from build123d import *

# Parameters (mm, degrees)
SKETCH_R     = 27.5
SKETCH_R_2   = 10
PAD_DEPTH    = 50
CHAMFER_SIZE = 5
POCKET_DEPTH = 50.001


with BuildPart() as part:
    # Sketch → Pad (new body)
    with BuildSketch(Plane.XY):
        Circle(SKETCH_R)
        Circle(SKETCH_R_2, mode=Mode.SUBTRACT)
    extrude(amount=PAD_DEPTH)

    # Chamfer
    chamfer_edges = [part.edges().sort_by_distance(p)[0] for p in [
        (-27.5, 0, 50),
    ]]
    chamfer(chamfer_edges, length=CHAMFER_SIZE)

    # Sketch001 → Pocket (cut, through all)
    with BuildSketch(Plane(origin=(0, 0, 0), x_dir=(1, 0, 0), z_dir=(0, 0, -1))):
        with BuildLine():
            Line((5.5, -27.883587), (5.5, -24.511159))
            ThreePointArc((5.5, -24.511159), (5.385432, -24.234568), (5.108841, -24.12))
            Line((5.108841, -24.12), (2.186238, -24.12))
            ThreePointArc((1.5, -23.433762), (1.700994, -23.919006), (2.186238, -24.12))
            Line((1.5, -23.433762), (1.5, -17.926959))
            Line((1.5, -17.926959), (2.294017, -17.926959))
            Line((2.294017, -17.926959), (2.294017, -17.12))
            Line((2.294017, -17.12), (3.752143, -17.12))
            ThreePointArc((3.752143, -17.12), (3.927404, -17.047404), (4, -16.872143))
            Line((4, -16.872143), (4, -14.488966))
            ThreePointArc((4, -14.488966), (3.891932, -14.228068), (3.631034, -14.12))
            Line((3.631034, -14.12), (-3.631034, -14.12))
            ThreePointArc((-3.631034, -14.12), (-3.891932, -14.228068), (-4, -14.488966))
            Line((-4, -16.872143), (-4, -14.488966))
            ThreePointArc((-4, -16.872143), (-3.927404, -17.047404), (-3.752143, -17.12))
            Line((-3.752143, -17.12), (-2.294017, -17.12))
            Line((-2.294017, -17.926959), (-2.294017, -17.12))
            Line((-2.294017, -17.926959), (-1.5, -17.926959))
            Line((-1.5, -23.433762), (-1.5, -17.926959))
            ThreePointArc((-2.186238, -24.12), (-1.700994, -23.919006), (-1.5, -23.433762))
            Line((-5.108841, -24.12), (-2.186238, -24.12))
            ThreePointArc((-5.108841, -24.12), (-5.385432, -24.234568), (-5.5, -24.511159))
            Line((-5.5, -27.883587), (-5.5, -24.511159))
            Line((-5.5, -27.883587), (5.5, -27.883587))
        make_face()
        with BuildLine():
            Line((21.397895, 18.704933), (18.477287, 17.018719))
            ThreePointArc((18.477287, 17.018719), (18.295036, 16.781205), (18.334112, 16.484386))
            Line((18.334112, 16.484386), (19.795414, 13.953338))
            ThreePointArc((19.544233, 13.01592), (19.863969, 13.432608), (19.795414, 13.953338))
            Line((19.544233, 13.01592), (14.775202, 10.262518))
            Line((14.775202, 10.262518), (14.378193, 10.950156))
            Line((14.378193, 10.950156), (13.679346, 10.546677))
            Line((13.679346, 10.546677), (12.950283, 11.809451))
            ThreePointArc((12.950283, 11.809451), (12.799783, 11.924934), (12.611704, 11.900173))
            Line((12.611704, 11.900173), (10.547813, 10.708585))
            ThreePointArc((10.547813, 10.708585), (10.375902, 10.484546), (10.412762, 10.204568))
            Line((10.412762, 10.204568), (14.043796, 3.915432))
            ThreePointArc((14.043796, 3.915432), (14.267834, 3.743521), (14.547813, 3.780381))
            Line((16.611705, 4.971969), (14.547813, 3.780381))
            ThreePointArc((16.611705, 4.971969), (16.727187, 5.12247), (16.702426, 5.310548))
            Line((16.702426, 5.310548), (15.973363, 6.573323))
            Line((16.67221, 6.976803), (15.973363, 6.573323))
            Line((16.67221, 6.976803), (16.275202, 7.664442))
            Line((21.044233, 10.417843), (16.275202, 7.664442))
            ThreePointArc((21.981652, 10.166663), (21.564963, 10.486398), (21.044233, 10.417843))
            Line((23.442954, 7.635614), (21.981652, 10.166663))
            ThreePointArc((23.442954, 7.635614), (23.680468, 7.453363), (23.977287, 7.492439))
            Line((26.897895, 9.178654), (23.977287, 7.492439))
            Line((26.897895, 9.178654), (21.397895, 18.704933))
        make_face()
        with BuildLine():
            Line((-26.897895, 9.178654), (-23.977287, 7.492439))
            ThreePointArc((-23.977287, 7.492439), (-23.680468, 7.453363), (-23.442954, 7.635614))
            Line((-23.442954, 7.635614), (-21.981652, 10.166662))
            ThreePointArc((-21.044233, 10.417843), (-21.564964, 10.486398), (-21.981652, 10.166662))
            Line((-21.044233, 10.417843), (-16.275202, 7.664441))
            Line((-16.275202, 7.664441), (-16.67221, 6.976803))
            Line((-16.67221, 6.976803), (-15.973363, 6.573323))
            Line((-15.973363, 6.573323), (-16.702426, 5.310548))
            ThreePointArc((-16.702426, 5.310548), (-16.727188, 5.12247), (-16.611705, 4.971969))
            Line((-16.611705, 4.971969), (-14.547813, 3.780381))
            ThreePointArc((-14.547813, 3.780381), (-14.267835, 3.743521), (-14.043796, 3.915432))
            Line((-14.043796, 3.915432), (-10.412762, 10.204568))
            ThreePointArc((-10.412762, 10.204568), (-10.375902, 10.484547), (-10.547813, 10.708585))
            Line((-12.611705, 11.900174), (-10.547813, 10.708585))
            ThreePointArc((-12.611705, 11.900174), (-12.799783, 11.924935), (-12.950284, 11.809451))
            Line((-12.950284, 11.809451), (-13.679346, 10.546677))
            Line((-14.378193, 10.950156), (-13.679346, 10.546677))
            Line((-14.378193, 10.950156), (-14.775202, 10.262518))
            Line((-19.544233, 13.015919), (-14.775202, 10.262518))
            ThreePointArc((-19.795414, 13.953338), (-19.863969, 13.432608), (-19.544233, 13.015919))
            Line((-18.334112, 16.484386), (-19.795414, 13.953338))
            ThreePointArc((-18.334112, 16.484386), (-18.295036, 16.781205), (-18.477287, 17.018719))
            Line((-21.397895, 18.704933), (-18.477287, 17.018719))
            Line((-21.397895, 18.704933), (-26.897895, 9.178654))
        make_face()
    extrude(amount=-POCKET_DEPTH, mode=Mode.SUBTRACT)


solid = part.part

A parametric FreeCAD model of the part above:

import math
import FreeCAD as App
import Part
import Sketcher
from FreeCAD import Vector
Q = App.Units.Quantity


def edges_at(feature, points):
    """Names of the edges that pass closest to the given points."""
    edges = feature.Shape.Edges
    near = lambda p: min(range(len(edges)), key=lambda i: edges[i].distToShape(Part.Vertex(*p))[0])
    return sorted({f"Edge{near(p) + 1}" for p in points})

doc = App.newDocument("Part")
body = doc.addObject("PartDesign::Body", "Body")

sketch1 = doc.addObject("Sketcher::SketchObject", "Sketch")
body.addObject(sketch1)
sketch1.AttachmentSupport = (doc.XY_Plane, [""])
sketch1.MapMode = "FlatFace"
sketch1.addGeometry([
    Part.Circle(Vector(0, 0, 0), Vector(0, 0, 1), 27.5),
    Part.Circle(Vector(0, 0, 0), Vector(0, 0, 1), 10),
], False)
sketch1.addConstraint([
    Sketcher.Constraint("Coincident", 0, 3, -1, 1),
    Sketcher.Constraint("Coincident", 1, 3, -1, 1),
    Sketcher.Constraint("Diameter", 0, 55.0),
    Sketcher.Constraint("Diameter", 1, 20.0),
])
pad1 = doc.addObject("PartDesign::Pad", "Pad")
body.addObject(pad1)
pad1.Profile = sketch1
pad1.Length = 50
doc.recompute()

chamfer = doc.addObject("PartDesign::Chamfer", "Chamfer")
body.addObject(chamfer)
chamfer.Base = (pad1, edges_at(pad1, [(-27.5, 0, 50)]))
chamfer.Size = 5

sketch2 = doc.addObject("Sketcher::SketchObject", "Sketch001")
body.addObject(sketch2)
sketch2.AttachmentSupport = (doc.XY_Plane, [""])
sketch2.MapMode = "FlatFace"
sketch2.addGeometry([
    Part.LineSegment(Vector(5.5, 27.883587, 0), Vector(5.5, 24.511159, 0)),
    Part.ArcOfCircle(Part.Circle(Vector(5.10884, 24.51116, 0), Vector(0, 0, 1), 0.39116), math.radians(-89.999909), math.radians(-0.000091)),
    Part.LineSegment(Vector(5.108841, 24.12, 0), Vector(2.186238, 24.12, 0)),
    Part.ArcOfCircle(Part.Circle(Vector(2.186236, 23.433764, 0), Vector(0, 0, 1), 0.686236), math.radians(89.99987), math.radians(180.00013)),
    Part.LineSegment(Vector(1.5, 23.433762, 0), Vector(1.5, 17.926959, 0)),
    Part.LineSegment(Vector(1.5, 17.926959, 0), Vector(2.294017, 17.926959, 0)),
    Part.LineSegment(Vector(2.294017, 17.926959, 0), Vector(2.294017, 17.12, 0)),
    Part.LineSegment(Vector(2.294017, 17.12, 0), Vector(3.752143, 17.12, 0)),
    Part.ArcOfCircle(Part.Circle(Vector(3.752142, 16.872142, 0), Vector(0, 0, 1), 0.247858), math.radians(0.000288), math.radians(89.999712)),
    Part.LineSegment(Vector(4, 16.872143, 0), Vector(4, 14.488966, 0)),
    Part.ArcOfCircle(Part.Circle(Vector(3.631033, 14.488967, 0), Vector(0, 0, 1), 0.368967), math.radians(-89.999809), math.radians(-0.000191)),
    Part.LineSegment(Vector(3.631034, 14.12, 0), Vector(-3.631034, 14.12, 0)),
    Part.ArcOfCircle(Part.Circle(Vector(-3.631033, 14.488967, 0), Vector(0, 0, 1), 0.368967), math.radians(-179.999809), math.radians(-90.000191)),
    Part.LineSegment(Vector(-4, 14.488966, 0), Vector(-4, 16.872143, 0)),
    Part.ArcOfCircle(Part.Circle(Vector(-3.752142, 16.872142, 0), Vector(0, 0, 1), 0.247858), math.radians(90.000288), math.radians(179.999712)),
    Part.LineSegment(Vector(-3.752143, 17.12, 0), Vector(-2.294017, 17.12, 0)),
    Part.LineSegment(Vector(-2.294017, 17.12, 0), Vector(-2.294017, 17.926959, 0)),
    Part.LineSegment(Vector(-2.294017, 17.926959, 0), Vector(-1.5, 17.926959, 0)),
    Part.LineSegment(Vector(-1.5, 17.926959, 0), Vector(-1.5, 23.433762, 0)),
    Part.ArcOfCircle(Part.Circle(Vector(-2.186236, 23.433764, 0), Vector(0, 0, 1), 0.686236), math.radians(-0.00013), math.radians(90.00013)),
    Part.LineSegment(Vector(-2.186238, 24.12, 0), Vector(-5.108841, 24.12, 0)),
    Part.ArcOfCircle(Part.Circle(Vector(-5.10884, 24.51116, 0), Vector(0, 0, 1), 0.39116), math.radians(-179.999909), math.radians(-90.000091)),
    Part.LineSegment(Vector(-5.5, 24.511159, 0), Vector(-5.5, 27.883587, 0)),
    Part.LineSegment(Vector(-5.5, 27.883587, 0), Vector(5.5, 27.883587, 0)),
    Part.LineSegment(Vector(21.397895, -18.704933, 0), Vector(18.477287, -17.018719, 0)),
    Part.ArcOfCircle(Part.Circle(Vector(18.672868, -16.679965, 0), Vector(0, 0, 1), 0.39116), math.radians(150.000258), math.radians(239.999923)),
    Part.LineSegment(Vector(18.334112, -16.484386, 0), Vector(19.795414, -13.953338, 0)),
    Part.ArcOfCircle(Part.Circle(Vector(19.201114, -13.61022, 0), Vector(0, 0, 1), 0.686238), math.radians(-29.999926), math.radians(59.999995)),
    Part.LineSegment(Vector(19.544233, -13.01592, 0), Vector(14.775202, -10.262518, 0)),
    Part.LineSegment(Vector(14.775202, -10.262518, 0), Vector(14.378193, -10.950156, 0)),
    Part.LineSegment(Vector(14.378193, -10.950156, 0), Vector(13.679346, -10.546677, 0)),
    Part.LineSegment(Vector(13.679346, -10.546677, 0), Vector(12.950283, -11.809451, 0)),
    Part.ArcOfCircle(Part.Circle(Vector(12.735633, -11.685523, 0), Vector(0, 0, 1), 0.247857), math.radians(-120.000043), math.radians(-29.999947)),
    Part.LineSegment(Vector(12.611704, -11.900173, 0), Vector(10.547813, -10.708585, 0)),
    Part.ArcOfCircle(Part.Circle(Vector(10.732296, -10.389051, 0), Vector(0, 0, 1), 0.368966), math.radians(149.999993), math.radians(240.000018)),
    Part.LineSegment(Vector(10.412762, -10.204568, 0), Vector(14.043796, -3.915432, 0)),
    Part.ArcOfCircle(Part.Circle(Vector(14.36333, -4.099914, 0), Vector(0, 0, 1), 0.368965), math.radians(59.999896), math.radians(150.000115)),
    Part.LineSegment(Vector(14.547813, -3.780381, 0), Vector(16.611705, -4.971969, 0)),
    Part.ArcOfCircle(Part.Circle(Vector(16.487774, -5.18662, 0), Vector(0, 0, 1), 0.247858), math.radians(-29.999817), math.radians(59.999511)),
    Part.LineSegment(Vector(16.702426, -5.310548, 0), Vector(15.973363, -6.573323, 0)),
    Part.LineSegment(Vector(15.973363, -6.573323, 0), Vector(16.67221, -6.976803, 0)),
    Part.LineSegment(Vector(16.67221, -6.976803, 0), Vector(16.275202, -7.664442, 0)),
    Part.LineSegment(Vector(16.275202, -7.664442, 0), Vector(21.044233, -10.417843, 0)),
    Part.ArcOfCircle(Part.Circle(Vector(21.387352, -9.82354, 0), Vector(0, 0, 1), 0.686241), math.radians(-119.999846), math.radians(-30.00023)),
    Part.LineSegment(Vector(21.981652, -10.166663, 0), Vector(23.442954, -7.635614, 0)),
    Part.ArcOfCircle(Part.Circle(Vector(23.781708, -7.831195, 0), Vector(0, 0, 1), 0.39116), math.radians(60.000258), math.radians(149.999923)),
    Part.LineSegment(Vector(23.977287, -7.492439, 0), Vector(26.897895, -9.178654, 0)),
    Part.LineSegment(Vector(26.897895, -9.178654, 0), Vector(21.397895, -18.704933, 0)),
    Part.LineSegment(Vector(-26.897895, -9.178654, 0), Vector(-23.977287, -7.492439, 0)),
    Part.ArcOfCircle(Part.Circle(Vector(-23.781708, -7.831195, 0), Vector(0, 0, 1), 0.39116), math.radians(30.000077), math.radians(119.999742)),
    Part.LineSegment(Vector(-23.442954, -7.635614, 0), Vector(-21.981652, -10.166662, 0)),
    Part.ArcOfCircle(Part.Circle(Vector(-21.387352, -9.823542, 0), Vector(0, 0, 1), 0.686239), math.radians(-149.999966), math.radians(-60.000073)),
    Part.LineSegment(Vector(-21.044233, -10.417843, 0), Vector(-16.275202, -7.664441, 0)),
    Part.LineSegment(Vector(-16.275202, -7.664441, 0), Vector(-16.67221, -6.976803, 0)),
    Part.LineSegment(Vector(-16.67221, -6.976803, 0), Vector(-15.973363, -6.573323, 0)),
    Part.LineSegment(Vector(-15.973363, -6.573323, 0), Vector(-16.702426, -5.310548, 0)),
    Part.ArcOfCircle(Part.Circle(Vector(-16.487777, -5.186619, 0), Vector(0, 0, 1), 0.247856), math.radians(119.99995), math.radians(210.000356)),
    Part.LineSegment(Vector(-16.611705, -4.971969, 0), Vector(-14.547813, -3.780381, 0)),
    Part.ArcOfCircle(Part.Circle(Vector(-14.36333, -4.099915, 0), Vector(0, 0, 1), 0.368966), math.radians(29.999982), math.radians(120.000007)),
    Part.LineSegment(Vector(-14.043796, -3.915432, 0), Vector(-10.412762, -10.204568, 0)),
    Part.ArcOfCircle(Part.Circle(Vector(-10.732295, -10.389051, 0), Vector(0, 0, 1), 0.368965), math.radians(-60.000115), math.radians(30.000104)),
    Part.LineSegment(Vector(-10.547813, -10.708585, 0), Vector(-12.611705, -11.900174, 0)),
    Part.ArcOfCircle(Part.Circle(Vector(-12.735633, -11.685524, 0), Vector(0, 0, 1), 0.247857), math.radians(-150.000306), math.radians(-60.000019)),
    Part.LineSegment(Vector(-12.950284, -11.809451, 0), Vector(-13.679346, -10.546677, 0)),
    Part.LineSegment(Vector(-13.679346, -10.546677, 0), Vector(-14.378193, -10.950156, 0)),
    Part.LineSegment(Vector(-14.378193, -10.950156, 0), Vector(-14.775202, -10.262518, 0)),
    Part.LineSegment(Vector(-14.775202, -10.262518, 0), Vector(-19.544233, -13.015919, 0)),
    Part.ArcOfCircle(Part.Circle(Vector(-19.201112, -13.610219, 0), Vector(0, 0, 1), 0.68624), math.radians(120.000087), math.radians(209.999875)),
    Part.LineSegment(Vector(-19.795414, -13.953338, 0), Vector(-18.334112, -16.484386, 0)),
    Part.ArcOfCircle(Part.Circle(Vector(-18.672868, -16.679965, 0), Vector(0, 0, 1), 0.39116), math.radians(-59.999923), math.radians(29.999742)),
    Part.LineSegment(Vector(-18.477287, -17.018719, 0), Vector(-21.397895, -18.704933, 0)),
    Part.LineSegment(Vector(-21.397895, -18.704933, 0), Vector(-26.897895, -9.178654, 0)),
], False)
sketch2.addConstraint([
    Sketcher.Constraint("Tangent", 0, 2, 1, 2),
    Sketcher.Constraint("Tangent", 1, 1, 2, 1),
    Sketcher.Constraint("Coincident", 2, 2, 3, 1),
    Sketcher.Constraint("Coincident", 3, 2, 4, 1),
    Sketcher.Constraint("Coincident", 4, 2, 5, 1),
    Sketcher.Constraint("Coincident", 5, 2, 6, 1),
    Sketcher.Constraint("Coincident", 6, 2, 7, 1),
    Sketcher.Constraint("Coincident", 7, 2, 8, 2),
    Sketcher.Constraint("Coincident", 8, 1, 9, 1),
    Sketcher.Constraint("Coincident", 9, 2, 10, 2),
    Sketcher.Constraint("Coincident", 10, 1, 11, 1),
    Sketcher.Constraint("Coincident", 11, 2, 12, 2),
    Sketcher.Constraint("Coincident", 12, 1, 13, 1),
    Sketcher.Constraint("Coincident", 13, 2, 14, 2),
    Sketcher.Constraint("Coincident", 14, 1, 15, 1),
    Sketcher.Constraint("Coincident", 15, 2, 16, 1),
    Sketcher.Constraint("Coincident", 16, 2, 17, 1),
    Sketcher.Constraint("Coincident", 17, 2, 18, 1),
    Sketcher.Constraint("Coincident", 18, 2, 19, 1),
    Sketcher.Constraint("Coincident", 19, 2, 20, 1),
    Sketcher.Constraint("Tangent", 20, 2, 21, 2),
    Sketcher.Constraint("Tangent", 21, 1, 22, 1),
    Sketcher.Constraint("Coincident", 22, 2, 23, 1),
    Sketcher.Constraint("Coincident", 23, 2, 0, 1),
    Sketcher.Constraint("Tangent", 24, 2, 25, 2),
    Sketcher.Constraint("Coincident", 25, 1, 26, 1),
    Sketcher.Constraint("Tangent", 26, 2, 27, 1),
    Sketcher.Constraint("Tangent", 27, 2, 28, 1),
    Sketcher.Constraint("Coincident", 28, 2, 29, 1),
    Sketcher.Constraint("Coincident", 29, 2, 30, 1),
    Sketcher.Constraint("Coincident", 30, 2, 31, 1),
    Sketcher.Constraint("Tangent", 31, 2, 32, 2),
    Sketcher.Constraint("Tangent", 32, 1, 33, 1),
    Sketcher.Constraint("Tangent", 33, 2, 34, 2),
    Sketcher.Constraint("Tangent", 34, 1, 35, 1),
    Sketcher.Constraint("Tangent", 35, 2, 36, 2),
    Sketcher.Constraint("Coincident", 36, 1, 37, 1),
    Sketcher.Constraint("Coincident", 37, 2, 38, 2),
    Sketcher.Constraint("Coincident", 38, 1, 39, 1),
    Sketcher.Constraint("Coincident", 39, 2, 40, 1),
    Sketcher.Constraint("Coincident", 40, 2, 41, 1),
    Sketcher.Constraint("Coincident", 41, 2, 42, 1),
    Sketcher.Constraint("Coincident", 42, 2, 43, 1),
    Sketcher.Constraint("Coincident", 43, 2, 44, 1),
    Sketcher.Constraint("Tangent", 44, 2, 45, 2),
    Sketcher.Constraint("Coincident", 45, 1, 46, 1),
    Sketcher.Constraint("Coincident", 46, 2, 47, 1),
    Sketcher.Constraint("Coincident", 47, 2, 24, 1),
    Sketcher.Constraint("Coincident", 48, 2, 49, 2),
    Sketcher.Constraint("Tangent", 49, 1, 50, 1),
    Sketcher.Constraint("Tangent", 50, 2, 51, 1),
    Sketcher.Constraint("Tangent", 51, 2, 52, 1),
    Sketcher.Constraint("Coincident", 52, 2, 53, 1),
    Sketcher.Constraint("Coincident", 53, 2, 54, 1),
    Sketcher.Constraint("Coincident", 54, 2, 55, 1),
    Sketcher.Constraint("Coincident", 55, 2, 56, 2),
    Sketcher.Constraint("Tangent", 56, 1, 57, 1),
    Sketcher.Constraint("Tangent", 57, 2, 58, 2),
    Sketcher.Constraint("Tangent", 58, 1, 59, 1),
    Sketcher.Constraint("Tangent", 59, 2, 60, 2),
    Sketcher.Constraint("Coincident", 60, 1, 61, 1),
    Sketcher.Constraint("Tangent", 61, 2, 62, 2),
    Sketcher.Constraint("Coincident", 62, 1, 63, 1),
    Sketcher.Constraint("Coincident", 63, 2, 64, 1),
    Sketcher.Constraint("Coincident", 64, 2, 65, 1),
    Sketcher.Constraint("Coincident", 65, 2, 66, 1),
    Sketcher.Constraint("Tangent", 66, 2, 67, 1),
    Sketcher.Constraint("Coincident", 67, 2, 68, 1),
    Sketcher.Constraint("Coincident", 68, 2, 69, 2),
    Sketcher.Constraint("Tangent", 69, 1, 70, 1),
    Sketcher.Constraint("Coincident", 70, 2, 71, 1),
    Sketcher.Constraint("Coincident", 71, 2, 48, 1),
    Sketcher.Constraint("Vertical", 0),
    Sketcher.Constraint("Horizontal", 2),
    Sketcher.Constraint("Vertical", 4),
    Sketcher.Constraint("Horizontal", 5),
    Sketcher.Constraint("Vertical", 6),
    Sketcher.Constraint("Horizontal", 7),
    Sketcher.Constraint("Vertical", 9),
    Sketcher.Constraint("Horizontal", 11),
    Sketcher.Constraint("Vertical", 13),
    Sketcher.Constraint("Horizontal", 15),
    Sketcher.Constraint("Vertical", 16),
    Sketcher.Constraint("Horizontal", 17),
    Sketcher.Constraint("Vertical", 18),
    Sketcher.Constraint("Horizontal", 20),
    Sketcher.Constraint("Vertical", 22),
    Sketcher.Constraint("Horizontal", 23),
    Sketcher.Constraint("Equal", 10, 12),
    Sketcher.Constraint("Equal", 8, 14),
    Sketcher.Constraint("Equal", 3, 19),
    Sketcher.Constraint("Equal", 1, 21),
    Sketcher.Constraint("Equal", 21, 25),
    Sketcher.Constraint("Equal", 19, 27),
    Sketcher.Constraint("Equal", 14, 32),
    Sketcher.Constraint("Equal", 12, 34),
    Sketcher.Constraint("Equal", 34, 36),
    Sketcher.Constraint("Equal", 32, 38),
    Sketcher.Constraint("Equal", 25, 45),
    Sketcher.Constraint("Equal", 45, 49),
    Sketcher.Constraint("Equal", 43, 51),
    Sketcher.Constraint("Equal", 32, 56),
    Sketcher.Constraint("Equal", 36, 58),
    Sketcher.Constraint("Equal", 58, 60),
    Sketcher.Constraint("Equal", 56, 62),
    Sketcher.Constraint("Equal", 51, 67),
    Sketcher.Constraint("Equal", 49, 69),
    Sketcher.Constraint("Symmetric", 8, 3, 14, 3, -2),
    Sketcher.Constraint("Symmetric", 3, 3, 19, 3, -2),
    Sketcher.Constraint("Symmetric", 45, 3, 49, 3, -2),
    Sketcher.Constraint("Symmetric", 43, 3, 51, 3, -2),
    Sketcher.Constraint("Symmetric", 38, 3, 56, 3, -2),
    Sketcher.Constraint("Symmetric", 36, 3, 58, 3, -2),
    Sketcher.Constraint("Symmetric", 34, 3, 60, 3, -2),
    Sketcher.Constraint("Symmetric", 32, 3, 62, 3, -2),
    Sketcher.Constraint("Symmetric", 27, 3, 67, 3, -2),
    Sketcher.Constraint("Symmetric", 25, 3, 69, 3, -2),
    Sketcher.Constraint("Symmetric", 5, 2, 16, 2, -2),
    Sketcher.Constraint("Symmetric", 41, 2, 52, 2, -2),
    Sketcher.Constraint("Symmetric", 40, 2, 53, 2, -2),
    Sketcher.Constraint("Symmetric", 39, 2, 54, 2, -2),
    Sketcher.Constraint("Symmetric", 30, 2, 63, 2, -2),
    Sketcher.Constraint("Symmetric", 29, 2, 64, 2, -2),
    Sketcher.Constraint("Symmetric", 28, 2, 65, 2, -2),
    Sketcher.Constraint("Symmetric", 26, 2, 67, 2, -2),
    Sketcher.Constraint("Symmetric", 47, 2, 70, 2, -2),
    Sketcher.Constraint("Symmetric", 46, 2, 71, 2, -2),
    Sketcher.Constraint("Perpendicular", 24, 26),
    Sketcher.Constraint("Perpendicular", 26, 28),
    Sketcher.Constraint("Perpendicular", 28, 29),
    Sketcher.Constraint("Perpendicular", 29, 30),
    Sketcher.Constraint("Perpendicular", 30, 31),
    Sketcher.Constraint("Perpendicular", 31, 33),
    Sketcher.Constraint("Perpendicular", 33, 35),
    Sketcher.Constraint("Perpendicular", 35, 37),
    Sketcher.Constraint("Perpendicular", 37, 39),
    Sketcher.Constraint("Perpendicular", 39, 40),
    Sketcher.Constraint("Perpendicular", 40, 41),
    Sketcher.Constraint("Perpendicular", 41, 42),
    Sketcher.Constraint("Perpendicular", 42, 44),
    Sketcher.Constraint("Perpendicular", 44, 46),
    Sketcher.Constraint("Perpendicular", 46, 47),
    Sketcher.Constraint("Horizontal", 19, 3, 3, 2),
    Sketcher.Constraint("Horizontal", 14, 3, 8, 1),
    Sketcher.Constraint("Horizontal", 12, 3, 9, 2),
    Sketcher.Constraint("Horizontal", 9, 2, 12, 1),
    Sketcher.Constraint("Horizontal", 8, 1, 13, 2),
    Sketcher.Constraint("Horizontal", 3, 2, 18, 2),
    Sketcher.Constraint("Horizontal", 45, 1, 48, 2),
    Sketcher.Constraint("Horizontal", 43, 2, 50, 2),
    Sketcher.Constraint("Horizontal", 42, 2, 51, 2),
    Sketcher.Constraint("Horizontal", 38, 1, 55, 2),
    Sketcher.Constraint("Horizontal", 37, 2, 56, 1),
    Sketcher.Constraint("Horizontal", 36, 1, 57, 2),
    Sketcher.Constraint("Horizontal", 33, 2, 60, 1),
    Sketcher.Constraint("Horizontal", 31, 2, 62, 1),
    Sketcher.Constraint("Horizontal", 25, 1, 68, 2),
    Sketcher.Constraint("Vertical", 3, 3, 2, 2),
    Sketcher.Constraint("Vertical", 8, 3, 7, 2),
    Sketcher.Constraint("Vertical", 12, 3, 11, 2),
    Sketcher.Constraint("Equal", 7, 15),
    Sketcher.Constraint("Equal", 2, 20),
    Sketcher.Constraint("Equal", 33, 37),
    Sketcher.Constraint("Equal", 31, 39),
    Sketcher.Constraint("Equal", 30, 40),
    Sketcher.Constraint("Equal", 29, 41),
    Sketcher.Constraint("Equal", 28, 42),
    Sketcher.Constraint("Equal", 26, 44),
    Sketcher.Constraint("Equal", 24, 46),
    Sketcher.Constraint("DistanceX", 23, 1, 23, 2, 11.0),
    Sketcher.Constraint("Angle", 24, Q("149.999997 deg")),
    Sketcher.Constraint("Distance", 47, 11.0),
    Sketcher.Constraint("DistanceX", -1, 1, 8, 1, 4.0),
    Sketcher.Constraint("DistanceX", -1, 1, 0, 2, 5.5),
    Sketcher.Constraint("DistanceX", -1, 1, 3, 2, 1.5),
    Sketcher.Constraint("DistanceY", -1, 1, 1, 1, 24.12),
    Sketcher.Constraint("DistanceY", -1, 1, 6, 2, 17.12),
    Sketcher.Constraint("DistanceY", -1, 1, 10, 1, 14.12),
    Sketcher.Constraint("Radius", 1, 0.39116),
    Sketcher.Constraint("Radius", 8, 0.247858),
    Sketcher.Constraint("Radius", 27, 0.686238),
    Sketcher.Constraint("Radius", 10, 0.368967),
    Sketcher.Constraint("DistanceX", 11, 2, 11, 1, 7.262068),
    Sketcher.Constraint("DistanceY", 6, 2, 6, 1, 0.806959),
    Sketcher.Constraint("DistanceX", -1, 1, 41, 2, 16.275202),
    Sketcher.Constraint("Distance", 30, 0.806959),
    Sketcher.Constraint("Distance", 35, 7.262069),
    Sketcher.Constraint("Distance", 46, 3.372428),
    Sketcher.Constraint("DistanceX", 5, 1, 5, 2, 0.794017),
    Sketcher.Constraint("DistanceY", 0, 2, 0, 1, 3.372428),
    Sketcher.Constraint("DistanceY", 27, 3, -1, 1, 13.61022),
    Sketcher.Constraint("DistanceY", 34, 3, -1, 1, 10.389051),
    Sketcher.Constraint("DistanceX", -1, 1, 36, 3, 14.36333),
    Sketcher.Constraint("DistanceY", 38, 3, -1, 1, 5.18662),
    Sketcher.Constraint("DistanceX", -1, 1, 43, 3, 21.387352),
    Sketcher.Constraint("DistanceX", -1, 1, 45, 3, 23.781708),
    Sketcher.Constraint("DistanceX", -1, 1, 40, 2, 16.67221),
])
pocket1 = doc.addObject("PartDesign::Pocket", "Pocket")
body.addObject(pocket1)
pocket1.Profile = sketch2
pocket1.Type = "ThroughAll"
pocket1.Reversed = True

doc.recompute()
